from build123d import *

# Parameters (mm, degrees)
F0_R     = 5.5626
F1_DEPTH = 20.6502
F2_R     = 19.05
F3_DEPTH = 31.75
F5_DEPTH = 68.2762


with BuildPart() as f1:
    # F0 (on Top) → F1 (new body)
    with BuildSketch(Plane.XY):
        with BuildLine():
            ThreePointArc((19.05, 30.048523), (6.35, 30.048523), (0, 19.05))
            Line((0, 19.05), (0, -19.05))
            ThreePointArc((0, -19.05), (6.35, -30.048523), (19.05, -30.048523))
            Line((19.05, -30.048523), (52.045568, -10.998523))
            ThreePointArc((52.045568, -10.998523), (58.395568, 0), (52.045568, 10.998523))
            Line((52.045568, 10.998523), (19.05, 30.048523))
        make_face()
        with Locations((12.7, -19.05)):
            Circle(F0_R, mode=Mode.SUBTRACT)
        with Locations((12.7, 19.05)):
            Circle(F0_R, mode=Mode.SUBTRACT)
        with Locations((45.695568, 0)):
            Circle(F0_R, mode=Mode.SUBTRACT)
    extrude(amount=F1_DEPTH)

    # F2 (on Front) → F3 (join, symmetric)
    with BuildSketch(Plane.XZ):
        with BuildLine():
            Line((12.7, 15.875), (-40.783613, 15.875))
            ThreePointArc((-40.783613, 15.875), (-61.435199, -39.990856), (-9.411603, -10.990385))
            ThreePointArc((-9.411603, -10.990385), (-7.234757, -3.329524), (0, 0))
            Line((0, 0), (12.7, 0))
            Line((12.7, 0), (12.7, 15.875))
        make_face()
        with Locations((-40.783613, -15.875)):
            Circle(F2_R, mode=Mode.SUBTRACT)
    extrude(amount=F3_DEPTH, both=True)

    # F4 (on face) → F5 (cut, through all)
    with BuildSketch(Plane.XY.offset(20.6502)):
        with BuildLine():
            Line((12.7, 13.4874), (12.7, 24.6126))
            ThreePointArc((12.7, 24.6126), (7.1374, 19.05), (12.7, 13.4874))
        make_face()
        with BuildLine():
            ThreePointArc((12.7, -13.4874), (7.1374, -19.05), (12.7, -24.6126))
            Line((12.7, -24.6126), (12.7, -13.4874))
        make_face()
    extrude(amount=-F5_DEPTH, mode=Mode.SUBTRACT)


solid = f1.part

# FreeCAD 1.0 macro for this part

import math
import FreeCAD as App
import Part
import Sketcher
Q = App.Units.Quantity

doc = App.newDocument("Part")
params = doc.addObject("Spreadsheet::Sheet", "Params")
for row, (alias, value) in enumerate([
    ("sketch1_radius", "0.5 in"),
    ("sketch1_diameter", "0.438 in"),
    ("sketch1_height", "1.5 in"),
    ("pad1_length", "0.813 in"),
    ("sketch2_diameter", "1.5 in"),
    ("sketch2_radius", "1.25 in"),
    ("sketch2_width", "0.5 in"),
    ("sketch2_radius2", "0.375 in"),
    ("pad2_length", "2.5 in"),
    ("sketch3_radius", "0.219 in"),
], start=1):
    params.set(f"A{row}", alias)
    params.set(f"B{row}", "=" + value)
    params.setAlias(f"B{row}", alias)

body = doc.addObject("PartDesign::Body", "Body")

# Sketch on XY plane
sketch1 = doc.addObject("Sketcher::SketchObject", "Sketch")
body.addObject(sketch1)
sketch1.AttachmentSupport = (doc.XY_Plane, [""])
sketch1.MapMode = "FlatFace"
sketch1.addGeometry(Part.ArcOfCircle(Part.Circle(App.Vector(12.7, 19.05, 0), App.Vector(0, 0, 1), 12.7), math.radians(60), math.radians(180.000002)), False)
sketch1.addGeometry(Part.LineSegment(App.Vector(0, 19.05, 0), App.Vector(0, -19.05, 0)), False)
sketch1.addGeometry(Part.ArcOfCircle(Part.Circle(App.Vector(12.7, -19.05, 0), App.Vector(0, 0, 1), 12.7), math.radians(179.999998), math.radians(300)), False)
sketch1.addGeometry(Part.LineSegment(App.Vector(19.05, -30.048523, 0), App.Vector(52.045568, -10.998523, 0)), False)
sketch1.addGeometry(Part.ArcOfCircle(Part.Circle(App.Vector(45.695567, 0, 0), App.Vector(0, 0, 1), 12.700001), math.radians(-59.999998), math.radians(59.999998)), False)
sketch1.addGeometry(Part.LineSegment(App.Vector(52.045568, 10.998523, 0), App.Vector(19.05, 30.048523, 0)), False)
sketch1.addGeometry(Part.Circle(App.Vector(12.7, -19.05, 0), App.Vector(0, 0, 1), 5.5626), False)
sketch1.addGeometry(Part.Circle(App.Vector(45.695568, 0, 0), App.Vector(0, 0, 1), 5.5626), False)
sketch1.addGeometry(Part.Circle(App.Vector(12.7, 19.05, 0), App.Vector(0, 0, 1), 5.5626), False)
sketch1.addConstraint(Sketcher.Constraint("Tangent", 0, 2, 1, 1))
sketch1.addConstraint(Sketcher.Constraint("Tangent", 1, 2, 2, 1))
sketch1.addConstraint(Sketcher.Constraint("Tangent", 2, 2, 3, 1))
sketch1.addConstraint(Sketcher.Constraint("Tangent", 3, 2, 4, 1))
sketch1.addConstraint(Sketcher.Constraint("Tangent", 4, 2, 5, 1))
sketch1.addConstraint(Sketcher.Constraint("Tangent", 5, 2, 0, 1))
sketch1.addConstraint(Sketcher.Constraint("Vertical", 1))
sketch1.addConstraint(Sketcher.Constraint("Coincident", 6, 3, 2, 3))
sketch1.addConstraint(Sketcher.Constraint("Coincident", 7, 3, 4, 3))
sketch1.addConstraint(Sketcher.Constraint("Coincident", 8, 3, 0, 3))
sketch1.addConstraint(Sketcher.Constraint("Equal", 0, 2))
sketch1.addConstraint(Sketcher.Constraint("Equal", 2, 4))
sketch1.addConstraint(Sketcher.Constraint("Equal", 6, 7))
sketch1.addConstraint(Sketcher.Constraint("Equal", 7, 8))
sketch1.addConstraint(Sketcher.Constraint("Symmetric", 0, 2, 1, 2, -1, 1))
sketch1.addConstraint(Sketcher.Constraint("PointOnObject", 4, 3, -1))
sketch1.addConstraint(Sketcher.Constraint("Radius", 0, Q("0.5 in")))
sketch1.addConstraint(Sketcher.Constraint("Diameter", 6, Q("0.438 in")))
sketch1.addConstraint(Sketcher.Constraint("DistanceY", 1, 2, 1, 1, Q("1.5 in")))
sketch1.addConstraint(Sketcher.Constraint("Angle", 3, Q("30 deg")))
sketch1.setExpression("Constraints[16]", "Params.sketch1_radius")
sketch1.setExpression("Constraints[17]", "Params.sketch1_diameter")
sketch1.setExpression("Constraints[18]", "Params.sketch1_height")
pad1 = doc.addObject("PartDesign::Pad", "Pad")
body.addObject(pad1)
pad1.Profile = sketch1
pad1.setExpression("Length", "Params.pad1_length")

# Sketch on XZ plane
sketch2 = doc.addObject("Sketcher::SketchObject", "Sketch001")
body.addObject(sketch2)
sketch2.AttachmentSupport = (doc.XZ_Plane, [""])
sketch2.MapMode = "FlatFace"
sketch2.addGeometry(Part.LineSegment(App.Vector(12.7, 15.875, 0), App.Vector(-40.783613, 15.875, 0)), False)
sketch2.addGeometry(Part.ArcOfCircle(Part.Circle(App.Vector(-40.783613, -15.875, 0), App.Vector(0, 0, 1), 31.75), math.radians(89.999999), math.radians(368.849882)), False)
sketch2.addGeometry(Part.ArcOfCircle(Part.Circle(App.Vector(-0.000001, -9.524999, 0), App.Vector(0, 0, 1), 9.524999), math.radians(89.999995), math.radians(188.84989)), False)
sketch2.addGeometry(Part.LineSegment(App.Vector(0, 0, 0), App.Vector(12.7, 0, 0)), False)
sketch2.addGeometry(Part.LineSegment(App.Vector(12.7, 0, 0), App.Vector(12.7, 15.875, 0)), False)
sketch2.addGeometry(Part.Circle(App.Vector(-40.783613, -15.875, 0), App.Vector(0, 0, 1), 19.05), False)
sketch2.addConstraint(Sketcher.Constraint("Tangent", 0, 2, 1, 1))
sketch2.addConstraint(Sketcher.Constraint("Tangent", 1, 2, 2, 2))
sketch2.addConstraint(Sketcher.Constraint("Tangent", 2, 1, 3, 1))
sketch2.addConstraint(Sketcher.Constraint("Coincident", 3, 2, 4, 1))
sketch2.addConstraint(Sketcher.Constraint("Coincident", 4, 2, 0, 1))
sketch2.addConstraint(Sketcher.Constraint("Horizontal", 0))
sketch2.addConstraint(Sketcher.Constraint("Horizontal", 3))
sketch2.addConstraint(Sketcher.Constraint("Vertical", 4))
sketch2.addConstraint(Sketcher.Constraint("Coincident", 2, 1, -1, 1))
sketch2.addConstraint(Sketcher.Constraint("Coincident", 5, 3, 1, 3))
sketch2.addConstraint(Sketcher.Constraint("Diameter", 5, Q("1.5 in")))
sketch2.addConstraint(Sketcher.Constraint("Radius", 1, Q("1.25 in")))
sketch2.addConstraint(Sketcher.Constraint("DistanceX", 3, 1, 3, 2, Q("0.5 in")))
sketch2.addConstraint(Sketcher.Constraint("Radius", 2, Q("0.375 in")))
sketch2.addConstraint(Sketcher.Constraint("DistanceY", 2, 3, 0, 2, Q("1 in")))
sketch2.setExpression("Constraints[10]", "Params.sketch2_diameter")
sketch2.setExpression("Constraints[11]", "Params.sketch2_radius")
sketch2.setExpression("Constraints[12]", "Params.sketch2_width")
sketch2.setExpression("Constraints[13]", "Params.sketch2_radius2")
pad2 = doc.addObject("PartDesign::Pad", "Pad001")
body.addObject(pad2)
pad2.Profile = sketch2
pad2.setExpression("Length", "Params.pad2_length")
pad2.Midplane = True

# Sketch on XY plane
sketch3 = doc.addObject("Sketcher::SketchObject", "Sketch002")
body.addObject(sketch3)
sketch3.AttachmentSupport = (doc.XY_Plane, [""])
sketch3.MapMode = "FlatFace"
sketch3.AttachmentOffset = App.Placement(App.Vector(0, 0, 0.813 * 25.4), App.Rotation())
sketch3.addGeometry(Part.LineSegment(App.Vector(12.7, 13.4874, 0), App.Vector(12.7, 24.6126, 0)), False)
sketch3.addGeometry(Part.ArcOfCircle(Part.Circle(App.Vector(12.7, 19.05, 0), App.Vector(0, 0, 1), 5.5626), math.radians(90), math.radians(270)), False)
sketch3.addGeometry(Part.ArcOfCircle(Part.Circle(App.Vector(12.7, -19.05, 0), App.Vector(0, 0, 1), 5.5626), math.radians(90), math.radians(270)), False)
sketch3.addGeometry(Part.LineSegment(App.Vector(12.7, -24.6126, 0), App.Vector(12.7, -13.4874, 0)), False)
sketch3.addConstraint(Sketcher.Constraint("Coincident", 0, 1, 1, 2))
sketch3.addConstraint(Sketcher.Constraint("Coincident", 1, 1, 0, 2))
sketch3.addConstraint(Sketcher.Constraint("Coincident", 2, 1, 3, 2))
sketch3.addConstraint(Sketcher.Constraint("Coincident", 3, 1, 2, 2))
sketch3.addConstraint(Sketcher.Constraint("Vertical", 0))
sketch3.addConstraint(Sketcher.Constraint("Vertical", 3))
sketch3.addConstraint(Sketcher.Constraint("Equal", 1, 2))
sketch3.addConstraint(Sketcher.Constraint("Symmetric", 1, 3, 2, 3, -1))
sketch3.addConstraint(Sketcher.Constraint("Vertical", 2, 3, 0, 1))
sketch3.addConstraint(Sketcher.Constraint("Vertical", 1, 1, 2, 1))
sketch3.addConstraint(Sketcher.Constraint("Radius", 1, Q("0.219 in")))
sketch3.addConstraint(Sketcher.Constraint("DistanceX", -1, 1, 1, 3, Q("0.5 in")))
sketch3.addConstraint(Sketcher.Constraint("DistanceY", 2, 3, 1, 3, Q("1.5 in")))
sketch3.setExpression("Constraints[10]", "Params.sketch3_radius")
pocket1 = doc.addObject("PartDesign::Pocket", "Pocket")
body.addObject(pocket1)
pocket1.Profile = sketch3
pocket1.Type = "ThroughAll"

doc.recompute()
